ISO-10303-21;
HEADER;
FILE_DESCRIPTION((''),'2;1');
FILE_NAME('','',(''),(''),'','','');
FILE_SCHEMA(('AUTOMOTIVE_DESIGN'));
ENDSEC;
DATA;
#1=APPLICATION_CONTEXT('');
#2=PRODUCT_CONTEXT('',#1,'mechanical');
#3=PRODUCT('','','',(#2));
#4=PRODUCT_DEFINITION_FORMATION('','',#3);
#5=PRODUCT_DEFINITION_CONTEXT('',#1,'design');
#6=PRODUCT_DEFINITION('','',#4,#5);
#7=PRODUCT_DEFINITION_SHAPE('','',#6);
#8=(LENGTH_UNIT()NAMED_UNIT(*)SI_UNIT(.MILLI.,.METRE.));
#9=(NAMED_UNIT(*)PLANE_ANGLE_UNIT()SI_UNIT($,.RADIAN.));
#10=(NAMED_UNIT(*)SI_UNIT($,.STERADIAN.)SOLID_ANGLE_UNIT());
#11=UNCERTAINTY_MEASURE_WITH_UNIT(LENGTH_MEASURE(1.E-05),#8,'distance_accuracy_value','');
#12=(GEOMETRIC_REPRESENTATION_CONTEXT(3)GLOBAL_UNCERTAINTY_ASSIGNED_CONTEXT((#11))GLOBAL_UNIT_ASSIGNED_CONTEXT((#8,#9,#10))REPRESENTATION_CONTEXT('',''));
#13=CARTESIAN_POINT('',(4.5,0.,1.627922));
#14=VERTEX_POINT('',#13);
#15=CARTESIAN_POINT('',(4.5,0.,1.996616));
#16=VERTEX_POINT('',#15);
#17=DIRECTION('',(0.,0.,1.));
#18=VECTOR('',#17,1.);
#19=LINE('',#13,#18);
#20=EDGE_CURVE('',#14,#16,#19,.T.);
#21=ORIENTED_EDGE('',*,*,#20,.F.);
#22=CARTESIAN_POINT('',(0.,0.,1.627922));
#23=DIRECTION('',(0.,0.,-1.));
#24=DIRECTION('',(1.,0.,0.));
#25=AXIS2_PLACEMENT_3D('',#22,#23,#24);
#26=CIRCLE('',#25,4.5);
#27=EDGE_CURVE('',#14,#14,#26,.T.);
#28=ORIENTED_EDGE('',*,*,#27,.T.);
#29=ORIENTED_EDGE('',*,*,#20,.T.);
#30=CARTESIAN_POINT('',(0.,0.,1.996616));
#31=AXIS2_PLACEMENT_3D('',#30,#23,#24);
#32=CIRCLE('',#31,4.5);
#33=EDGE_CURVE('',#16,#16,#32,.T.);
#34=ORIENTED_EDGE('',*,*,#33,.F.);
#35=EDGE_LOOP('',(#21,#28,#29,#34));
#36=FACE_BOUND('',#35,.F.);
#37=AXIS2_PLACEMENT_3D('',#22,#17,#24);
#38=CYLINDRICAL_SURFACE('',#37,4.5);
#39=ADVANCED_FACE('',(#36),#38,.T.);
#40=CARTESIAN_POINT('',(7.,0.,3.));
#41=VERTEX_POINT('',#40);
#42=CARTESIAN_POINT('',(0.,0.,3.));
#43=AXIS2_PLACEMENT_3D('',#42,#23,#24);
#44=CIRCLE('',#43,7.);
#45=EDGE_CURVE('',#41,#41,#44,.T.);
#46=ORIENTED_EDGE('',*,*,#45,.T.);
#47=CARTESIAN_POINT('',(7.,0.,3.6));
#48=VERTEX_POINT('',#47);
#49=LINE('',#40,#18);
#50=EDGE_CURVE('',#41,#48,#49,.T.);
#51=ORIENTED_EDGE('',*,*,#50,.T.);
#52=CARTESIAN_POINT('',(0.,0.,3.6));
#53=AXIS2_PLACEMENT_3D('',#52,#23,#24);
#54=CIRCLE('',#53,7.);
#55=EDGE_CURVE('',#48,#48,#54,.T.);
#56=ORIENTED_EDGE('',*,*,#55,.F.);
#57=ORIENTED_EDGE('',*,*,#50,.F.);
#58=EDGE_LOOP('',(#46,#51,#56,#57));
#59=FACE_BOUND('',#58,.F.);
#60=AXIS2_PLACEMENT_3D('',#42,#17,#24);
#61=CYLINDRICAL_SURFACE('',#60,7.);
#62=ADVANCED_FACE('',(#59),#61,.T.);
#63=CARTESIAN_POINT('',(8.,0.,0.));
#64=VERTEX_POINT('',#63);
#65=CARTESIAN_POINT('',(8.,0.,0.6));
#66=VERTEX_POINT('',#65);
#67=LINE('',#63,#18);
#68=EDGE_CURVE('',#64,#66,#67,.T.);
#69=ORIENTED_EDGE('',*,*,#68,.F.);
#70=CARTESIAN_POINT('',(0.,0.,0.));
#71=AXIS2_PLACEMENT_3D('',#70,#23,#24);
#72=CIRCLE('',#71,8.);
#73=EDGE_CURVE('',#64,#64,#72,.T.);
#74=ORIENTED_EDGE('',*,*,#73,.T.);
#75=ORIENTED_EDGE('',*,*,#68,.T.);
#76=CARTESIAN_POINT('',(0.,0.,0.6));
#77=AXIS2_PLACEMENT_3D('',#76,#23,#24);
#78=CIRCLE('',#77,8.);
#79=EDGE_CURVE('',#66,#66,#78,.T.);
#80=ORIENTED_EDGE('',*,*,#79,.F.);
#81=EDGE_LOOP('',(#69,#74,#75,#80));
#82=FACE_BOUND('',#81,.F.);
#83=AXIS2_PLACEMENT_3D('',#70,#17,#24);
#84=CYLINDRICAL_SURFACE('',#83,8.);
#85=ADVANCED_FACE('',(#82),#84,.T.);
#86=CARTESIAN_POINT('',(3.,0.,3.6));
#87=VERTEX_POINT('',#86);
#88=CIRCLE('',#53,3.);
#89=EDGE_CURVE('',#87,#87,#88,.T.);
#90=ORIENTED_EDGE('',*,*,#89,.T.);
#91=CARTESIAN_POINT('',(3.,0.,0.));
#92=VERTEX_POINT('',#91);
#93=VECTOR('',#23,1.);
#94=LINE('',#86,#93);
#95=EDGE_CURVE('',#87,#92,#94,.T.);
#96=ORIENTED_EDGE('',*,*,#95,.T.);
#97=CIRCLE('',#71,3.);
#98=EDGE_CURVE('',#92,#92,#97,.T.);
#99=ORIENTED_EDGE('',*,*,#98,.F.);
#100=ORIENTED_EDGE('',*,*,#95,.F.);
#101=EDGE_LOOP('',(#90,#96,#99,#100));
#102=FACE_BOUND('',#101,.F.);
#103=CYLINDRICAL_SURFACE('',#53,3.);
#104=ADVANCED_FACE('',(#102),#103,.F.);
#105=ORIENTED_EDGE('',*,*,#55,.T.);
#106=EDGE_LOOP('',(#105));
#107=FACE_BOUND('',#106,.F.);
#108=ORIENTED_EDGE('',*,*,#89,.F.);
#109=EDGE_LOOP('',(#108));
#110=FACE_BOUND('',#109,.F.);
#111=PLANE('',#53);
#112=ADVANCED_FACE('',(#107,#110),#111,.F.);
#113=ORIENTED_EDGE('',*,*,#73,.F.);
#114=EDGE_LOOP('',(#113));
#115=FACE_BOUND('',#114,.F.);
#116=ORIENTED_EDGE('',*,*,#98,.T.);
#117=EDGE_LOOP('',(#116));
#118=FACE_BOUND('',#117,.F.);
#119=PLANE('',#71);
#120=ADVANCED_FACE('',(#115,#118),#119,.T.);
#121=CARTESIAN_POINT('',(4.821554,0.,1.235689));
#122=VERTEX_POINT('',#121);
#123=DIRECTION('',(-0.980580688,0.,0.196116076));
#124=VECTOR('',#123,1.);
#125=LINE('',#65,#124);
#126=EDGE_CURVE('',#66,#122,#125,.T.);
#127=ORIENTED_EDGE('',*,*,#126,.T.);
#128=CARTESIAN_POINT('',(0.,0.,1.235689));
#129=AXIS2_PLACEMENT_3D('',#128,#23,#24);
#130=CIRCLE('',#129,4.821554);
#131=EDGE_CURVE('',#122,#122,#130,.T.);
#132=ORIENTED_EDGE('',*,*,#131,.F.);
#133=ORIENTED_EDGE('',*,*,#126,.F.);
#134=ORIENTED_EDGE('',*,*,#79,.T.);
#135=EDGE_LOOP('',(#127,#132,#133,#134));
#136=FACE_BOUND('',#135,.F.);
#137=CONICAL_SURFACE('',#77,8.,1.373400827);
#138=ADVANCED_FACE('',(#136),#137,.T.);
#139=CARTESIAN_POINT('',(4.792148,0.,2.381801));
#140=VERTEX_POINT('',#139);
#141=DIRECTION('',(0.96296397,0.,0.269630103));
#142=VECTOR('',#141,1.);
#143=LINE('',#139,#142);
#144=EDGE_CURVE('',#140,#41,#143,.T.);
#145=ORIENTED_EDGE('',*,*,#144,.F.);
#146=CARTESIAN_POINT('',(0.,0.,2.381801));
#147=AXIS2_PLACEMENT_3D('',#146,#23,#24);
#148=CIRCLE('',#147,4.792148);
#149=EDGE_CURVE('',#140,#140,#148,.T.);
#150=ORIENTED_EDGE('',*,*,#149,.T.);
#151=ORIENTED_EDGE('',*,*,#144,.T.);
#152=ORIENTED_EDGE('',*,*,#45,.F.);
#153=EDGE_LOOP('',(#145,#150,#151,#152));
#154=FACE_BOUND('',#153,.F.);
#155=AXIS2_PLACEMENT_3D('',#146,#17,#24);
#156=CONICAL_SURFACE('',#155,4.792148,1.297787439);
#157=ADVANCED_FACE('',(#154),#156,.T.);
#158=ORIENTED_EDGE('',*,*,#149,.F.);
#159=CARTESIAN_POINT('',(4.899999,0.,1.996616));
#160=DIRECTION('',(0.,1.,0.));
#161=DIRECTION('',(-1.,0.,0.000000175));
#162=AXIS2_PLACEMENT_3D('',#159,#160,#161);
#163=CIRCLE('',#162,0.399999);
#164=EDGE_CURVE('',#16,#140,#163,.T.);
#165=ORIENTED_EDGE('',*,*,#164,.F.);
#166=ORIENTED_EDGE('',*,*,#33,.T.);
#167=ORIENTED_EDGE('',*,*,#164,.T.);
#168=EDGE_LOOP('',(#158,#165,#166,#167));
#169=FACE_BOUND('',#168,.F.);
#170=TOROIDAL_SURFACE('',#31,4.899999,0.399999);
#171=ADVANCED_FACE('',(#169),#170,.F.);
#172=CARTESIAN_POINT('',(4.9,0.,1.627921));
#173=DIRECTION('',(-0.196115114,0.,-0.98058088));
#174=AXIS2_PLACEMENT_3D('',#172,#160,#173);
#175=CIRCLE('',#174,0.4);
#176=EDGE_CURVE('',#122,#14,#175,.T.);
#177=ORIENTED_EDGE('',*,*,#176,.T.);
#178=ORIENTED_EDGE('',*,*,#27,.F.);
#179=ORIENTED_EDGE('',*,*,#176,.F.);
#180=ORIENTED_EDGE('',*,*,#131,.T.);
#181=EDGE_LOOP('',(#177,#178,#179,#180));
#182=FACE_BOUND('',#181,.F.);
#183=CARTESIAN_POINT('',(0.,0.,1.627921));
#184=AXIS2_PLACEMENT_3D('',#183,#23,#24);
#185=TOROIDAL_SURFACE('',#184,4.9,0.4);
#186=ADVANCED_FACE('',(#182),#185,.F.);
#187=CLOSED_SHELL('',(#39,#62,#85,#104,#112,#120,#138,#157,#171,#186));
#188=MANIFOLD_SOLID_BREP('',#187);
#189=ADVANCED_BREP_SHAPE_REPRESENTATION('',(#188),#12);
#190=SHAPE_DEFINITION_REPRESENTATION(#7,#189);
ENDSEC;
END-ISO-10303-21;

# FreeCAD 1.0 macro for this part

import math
import FreeCAD as App
import Part
import Sketcher

doc = App.newDocument("Part")
body = doc.addObject("PartDesign::Body", "Body")

sketch1 = body.newObject("Sketcher::SketchObject", "Sketch")
sketch1.AttachmentSupport = (doc.getObject("XZ_Plane"), [""])
sketch1.MapMode = "FlatFace"
sketch1.addGeometry([
    Part.LineSegment(App.Vector(3, 3.6, 0), App.Vector(3, 0, 0)),
    Part.LineSegment(App.Vector(3, 0, 0), App.Vector(8, 0, 0)),
    Part.LineSegment(App.Vector(8, 0, 0), App.Vector(8, 0.6, 0)),
    Part.LineSegment(App.Vector(8, 0.6, 0), App.Vector(4.821554, 1.235689, 0)),
    Part.ArcOfCircle(Part.Circle(App.Vector(4.9, 1.627921, 0), App.Vector(0, 0, 1), 0.4), math.radians(179.999915), math.radians(258.690127)),
    Part.LineSegment(App.Vector(4.5, 1.627922, 0), App.Vector(4.5, 1.996616, 0)),
    Part.ArcOfCircle(Part.Circle(App.Vector(4.899999, 1.996616, 0), App.Vector(0, 0, 1), 0.399999), math.radians(105.642175), math.radians(179.99999)),
    Part.LineSegment(App.Vector(4.792148, 2.381801, 0), App.Vector(7, 3, 0)),
    Part.LineSegment(App.Vector(7, 3, 0), App.Vector(7, 3.6, 0)),
    Part.LineSegment(App.Vector(7, 3.6, 0), App.Vector(3, 3.6, 0)),
], False)
sketch1.addConstraint([
    Sketcher.Constraint("Coincident", 0, 2, 1, 1),
    Sketcher.Constraint("Coincident", 1, 2, 2, 1),
    Sketcher.Constraint("Coincident", 2, 2, 3, 1),
    Sketcher.Constraint("Tangent", 3, 2, 4, 2),
    Sketcher.Constraint("Tangent", 4, 1, 5, 1),
    Sketcher.Constraint("Tangent", 5, 2, 6, 2),
    Sketcher.Constraint("Tangent", 6, 1, 7, 1),
    Sketcher.Constraint("Coincident", 7, 2, 8, 1),
    Sketcher.Constraint("Coincident", 8, 2, 9, 1),
    Sketcher.Constraint("Coincident", 9, 2, 0, 1),
    Sketcher.Constraint("Vertical", 0),
    Sketcher.Constraint("Horizontal", 1),
    Sketcher.Constraint("Vertical", 2),
    Sketcher.Constraint("Vertical", 5),
    Sketcher.Constraint("Vertical", 8),
    Sketcher.Constraint("Horizontal", 9),
    Sketcher.Constraint("Equal", 4, 6),
    Sketcher.Constraint("PointOnObject", 0, 2, -1),
    Sketcher.Constraint("Equal", 2, 8),
    Sketcher.Constraint("Radius", 4, 0.4),
    Sketcher.Constraint("DistanceX", 1, 1, 1, 2, 5.0),
    Sketcher.Constraint("DistanceX", 9, 2, 9, 1, 4.0),
    Sketcher.Constraint("DistanceY", 0, 2, 0, 1, 3.6),
    Sketcher.Constraint("DistanceY", 2, 1, 2, 2, 0.6),
    Sketcher.Constraint("DistanceX", -1, 1, 0, 2, 3.0),
    Sketcher.Constraint("DistanceX", -1, 1, 4, 3, 4.9),
    Sketcher.Constraint("DistanceY", -1, 1, 6, 1, 2.381801),
    Sketcher.Constraint("Distance", 3, 3.241392),
])
revolution = body.newObject("PartDesign::Revolution", "Revolution")
revolution.Profile = sketch1
revolution.ReferenceAxis = (sketch1, ["V_Axis"])
revolution.Angle = 360

doc.recompute()
